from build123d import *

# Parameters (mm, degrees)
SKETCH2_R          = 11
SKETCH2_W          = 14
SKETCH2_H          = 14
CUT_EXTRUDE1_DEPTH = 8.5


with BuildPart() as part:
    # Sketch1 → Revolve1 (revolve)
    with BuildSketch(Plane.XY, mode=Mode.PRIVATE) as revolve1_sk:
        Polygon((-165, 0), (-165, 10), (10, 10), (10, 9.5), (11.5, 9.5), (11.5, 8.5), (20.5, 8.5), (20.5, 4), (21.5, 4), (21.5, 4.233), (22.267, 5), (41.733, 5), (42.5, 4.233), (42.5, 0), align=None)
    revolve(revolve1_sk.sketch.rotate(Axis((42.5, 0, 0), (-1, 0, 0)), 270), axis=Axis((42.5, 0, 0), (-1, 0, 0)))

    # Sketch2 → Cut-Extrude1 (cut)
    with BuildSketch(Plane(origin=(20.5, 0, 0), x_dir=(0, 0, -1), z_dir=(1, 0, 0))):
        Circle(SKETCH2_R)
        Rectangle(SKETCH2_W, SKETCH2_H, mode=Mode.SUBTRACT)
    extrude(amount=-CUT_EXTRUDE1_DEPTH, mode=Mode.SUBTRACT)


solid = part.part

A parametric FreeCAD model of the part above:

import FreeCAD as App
import Part
import Sketcher
from FreeCAD import Vector
Q = App.Units.Quantity


def add_polygon(sketch, points):
    """Adds a closed chain of lines whose ends are joined by coincident constraints."""
    first, n = sketch.GeometryCount, len(points)
    for a, b in zip(points, points[1:] + points[:1]):
        sketch.addGeometry(Part.LineSegment(App.Vector(*a, 0), App.Vector(*b, 0)), False)
    for i in range(n):
        sketch.addConstraint(Sketcher.Constraint("Coincident", first + i, 2, first + (i + 1) % n, 1))

doc = App.newDocument("Part")
params = doc.addObject("Spreadsheet::Sheet", "Params")
for row, (alias, value) in enumerate([
    ("sketch1_width", "1 mm"),
    ("sketch1_width2", "9 mm"),
    ("sketch1_width3", "175 mm"),
    ("sketch1_height", "10 mm"),
    ("sketch1_width4", "207.5 mm"),
    ("revolution_angle", "360 deg"),
    ("sketch2_diameter", "22 mm"),
    ("sketch2_width", "14 mm"),
    ("pocket1_length", "8.5 mm"),
], start=1):
    params.set(f"A{row}", alias)
    params.set(f"B{row}", "=" + value)
    params.setAlias(f"B{row}", alias)

body = doc.addObject("PartDesign::Body", "Body")

# Sketch on XY plane
sketch1 = doc.addObject("Sketcher::SketchObject", "Sketch")
body.addObject(sketch1)
sketch1.AttachmentSupport = (doc.XY_Plane, [""])
sketch1.MapMode = "FlatFace"
add_polygon(sketch1, [(-165, 10), (-165, 0), (42.5, 0), (42.5, 4.233), (41.733, 5), (22.267, 5), (21.5, 4.233), (21.5, 4), (20.5, 4), (20.5, 8.5), (11.5, 8.5), (11.5, 9.5), (10, 9.5), (10, 10)])  # lines 0-13
sketch1.addConstraint([
    Sketcher.Constraint("Vertical", 0),
    Sketcher.Constraint("Horizontal", 1),
    Sketcher.Constraint("Vertical", 2),
    Sketcher.Constraint("Horizontal", 4),
    Sketcher.Constraint("Vertical", 6),
    Sketcher.Constraint("Horizontal", 7),
    Sketcher.Constraint("Vertical", 8),
    Sketcher.Constraint("Horizontal", 9),
    Sketcher.Constraint("Vertical", 10),
    Sketcher.Constraint("Horizontal", 11),
    Sketcher.Constraint("Vertical", 12),
    Sketcher.Constraint("Horizontal", 13),
    Sketcher.Constraint("PointOnObject", 0, 2, -1),
    Sketcher.Constraint("Perpendicular", 3, 5),
    Sketcher.Constraint("Horizontal", 2, 2, 5, 2),
    Sketcher.Constraint("Equal", 7, 10),
    Sketcher.Constraint("Equal", 3, 5),
    Sketcher.Constraint("DistanceX", 7, 2, 7, 1, Q("1 mm")),
    Sketcher.Constraint("DistanceX", 9, 2, 9, 1, Q("9 mm")),
    Sketcher.Constraint("DistanceX", 13, 2, 13, 1, Q("175 mm")),
    Sketcher.Constraint("DistanceY", 0, 2, 0, 1, Q("10 mm")),
    Sketcher.Constraint("DistanceX", 1, 1, 1, 2, Q("207.5 mm")),
    Sketcher.Constraint("DistanceX", 11, 2, 11, 1, Q("1.5 mm")),
    Sketcher.Constraint("DistanceY", 8, 1, 8, 2, Q("4.5 mm")),
    Sketcher.Constraint("DistanceY", 12, 1, 12, 2, Q("0.5 mm")),
    Sketcher.Constraint("DistanceX", 0, 2, -1, 1, Q("165 mm")),
    Sketcher.Constraint("DistanceY", -1, 1, 3, 2, Q("5 mm")),
    Sketcher.Constraint("DistanceX", 4, 2, 4, 1, Q("19.466 mm")),
])
sketch1.setExpression("Constraints[31]", "Params.sketch1_width")
sketch1.setExpression("Constraints[32]", "Params.sketch1_width2")
sketch1.setExpression("Constraints[33]", "Params.sketch1_width3")
sketch1.setExpression("Constraints[34]", "Params.sketch1_height")
sketch1.setExpression("Constraints[35]", "Params.sketch1_width4")
revolution = doc.addObject("PartDesign::Revolution", "Revolution")
body.addObject(revolution)
revolution.Profile = sketch1
revolution.ReferenceAxis = (sketch1, ["H_Axis"])
revolution.setExpression("Angle", "Params.revolution_angle")

# Sketch on YZ plane
sketch2 = doc.addObject("Sketcher::SketchObject", "Sketch001")
body.addObject(sketch2)
sketch2.AttachmentSupport = (doc.YZ_Plane, [""])
sketch2.MapMode = "FlatFace"
sketch2.AttachmentOffset = App.Placement(Vector(0, 0, 20.5), App.Rotation())
sketch2.addGeometry(Part.Circle(Vector(0, 0, 0), Vector(0, 0, 1), 11), False)  # 0
add_polygon(sketch2, [(-7, -7), (-7, 7), (7, 7), (7, -7)])  # lines 1-4
sketch2.addConstraint([
    Sketcher.Constraint("Vertical", 1),
    Sketcher.Constraint("Horizontal", 2),
    Sketcher.Constraint("Vertical", 3),
    Sketcher.Constraint("Horizontal", 4),
    Sketcher.Constraint("Coincident", 0, 3, -1, 1),
    Sketcher.Constraint("Symmetric", 1, 2, 3, 2, -1, 1),
    Sketcher.Constraint("Equal", 4, 1),
    Sketcher.Constraint("Diameter", 0, Q("22 mm")),
    Sketcher.Constraint("DistanceX", 2, 1, 2, 2, Q("14 mm")),
])
sketch2.setExpression("Constraints[11]", "Params.sketch2_diameter")
sketch2.setExpression("Constraints[12]", "Params.sketch2_width")
pocket1 = doc.addObject("PartDesign::Pocket", "Pocket")
body.addObject(pocket1)
pocket1.Profile = sketch2
pocket1.setExpression("Length", "Params.pocket1_length")

doc.recompute()
